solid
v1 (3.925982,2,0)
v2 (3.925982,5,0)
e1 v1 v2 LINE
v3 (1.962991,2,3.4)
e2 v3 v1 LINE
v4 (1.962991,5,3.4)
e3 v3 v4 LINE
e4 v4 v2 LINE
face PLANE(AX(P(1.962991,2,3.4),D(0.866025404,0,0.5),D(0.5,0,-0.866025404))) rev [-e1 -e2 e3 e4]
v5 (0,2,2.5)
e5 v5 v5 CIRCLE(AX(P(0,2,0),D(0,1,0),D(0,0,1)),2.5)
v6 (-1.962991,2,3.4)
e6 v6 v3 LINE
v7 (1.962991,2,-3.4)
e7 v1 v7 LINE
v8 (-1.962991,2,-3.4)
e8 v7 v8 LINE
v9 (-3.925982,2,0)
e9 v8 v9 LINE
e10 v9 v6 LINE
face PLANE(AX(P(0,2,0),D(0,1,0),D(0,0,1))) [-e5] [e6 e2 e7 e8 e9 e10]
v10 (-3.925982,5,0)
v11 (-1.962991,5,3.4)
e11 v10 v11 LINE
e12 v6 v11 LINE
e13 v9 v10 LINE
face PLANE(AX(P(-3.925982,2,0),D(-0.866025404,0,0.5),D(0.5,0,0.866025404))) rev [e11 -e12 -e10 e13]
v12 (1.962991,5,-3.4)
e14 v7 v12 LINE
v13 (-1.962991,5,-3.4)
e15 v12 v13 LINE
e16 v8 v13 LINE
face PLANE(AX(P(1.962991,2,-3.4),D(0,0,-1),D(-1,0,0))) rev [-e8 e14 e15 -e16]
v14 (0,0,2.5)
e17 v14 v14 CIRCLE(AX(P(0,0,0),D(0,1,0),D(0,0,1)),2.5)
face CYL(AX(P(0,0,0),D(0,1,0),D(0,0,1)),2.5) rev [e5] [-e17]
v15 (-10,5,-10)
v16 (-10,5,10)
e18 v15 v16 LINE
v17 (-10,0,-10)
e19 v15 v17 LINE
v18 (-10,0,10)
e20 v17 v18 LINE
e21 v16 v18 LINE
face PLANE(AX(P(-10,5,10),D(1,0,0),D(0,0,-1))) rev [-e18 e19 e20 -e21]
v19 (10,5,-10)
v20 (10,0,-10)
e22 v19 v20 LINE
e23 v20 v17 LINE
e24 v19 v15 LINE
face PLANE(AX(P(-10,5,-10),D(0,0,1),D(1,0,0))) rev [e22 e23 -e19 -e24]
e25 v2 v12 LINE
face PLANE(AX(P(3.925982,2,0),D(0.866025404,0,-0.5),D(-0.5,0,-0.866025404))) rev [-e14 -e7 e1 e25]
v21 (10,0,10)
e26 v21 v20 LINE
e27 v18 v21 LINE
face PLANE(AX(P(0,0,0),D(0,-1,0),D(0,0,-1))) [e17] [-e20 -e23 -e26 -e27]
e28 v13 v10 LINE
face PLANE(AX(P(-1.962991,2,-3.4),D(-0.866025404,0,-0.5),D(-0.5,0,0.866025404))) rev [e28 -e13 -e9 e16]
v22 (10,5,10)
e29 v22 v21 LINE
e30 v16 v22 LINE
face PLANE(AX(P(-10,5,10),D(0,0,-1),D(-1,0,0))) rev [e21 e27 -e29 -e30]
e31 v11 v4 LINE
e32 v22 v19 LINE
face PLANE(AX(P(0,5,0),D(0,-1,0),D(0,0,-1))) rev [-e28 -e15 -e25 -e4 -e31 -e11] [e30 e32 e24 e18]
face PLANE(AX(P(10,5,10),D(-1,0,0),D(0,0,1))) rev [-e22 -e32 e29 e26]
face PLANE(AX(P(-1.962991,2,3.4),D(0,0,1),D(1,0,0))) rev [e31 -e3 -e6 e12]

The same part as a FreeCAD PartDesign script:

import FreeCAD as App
import Part
import Sketcher
Q = App.Units.Quantity


def add_polygon(sketch, points):
    """Adds a closed chain of lines whose ends are joined by coincident constraints."""
    first, n = sketch.GeometryCount, len(points)
    for a, b in zip(points, points[1:] + points[:1]):
        sketch.addGeometry(Part.LineSegment(App.Vector(*a, 0), App.Vector(*b, 0)), False)
    for i in range(n):
        sketch.addConstraint(Sketcher.Constraint("Coincident", first + i, 2, first + (i + 1) % n, 1))

doc = App.newDocument("Part")
body = doc.addObject("PartDesign::Body", "Body")

sketch1 = doc.addObject("Sketcher::SketchObject", "Sketch")
body.addObject(sketch1)
sketch1.AttachmentSupport = (doc.XZ_Plane, [""])
sketch1.MapMode = "FlatFace"
add_polygon(sketch1, [(-10, -10), (-10, 10), (10, 10), (10, -10)])
sketch1.addConstraint(Sketcher.Constraint("Vertical", 0))
sketch1.addConstraint(Sketcher.Constraint("Horizontal", 1))
sketch1.addConstraint(Sketcher.Constraint("Vertical", 2))
sketch1.addConstraint(Sketcher.Constraint("Horizontal", 3))
sketch1.addConstraint(Sketcher.Constraint("Symmetric", 0, 2, 2, 2, -1, 1))
sketch1.addConstraint(Sketcher.Constraint("Equal", 3, 0))
sketch1.addConstraint(Sketcher.Constraint("DistanceX", 1, 1, 1, 2, Q("20 mm")))
pad1 = doc.addObject("PartDesign::Pad", "Pad")
body.addObject(pad1)
pad1.Profile = sketch1
pad1.Length = 5
pad1.Reversed = True

sketch2 = doc.addObject("Sketcher::SketchObject", "Sketch001")
body.addObject(sketch2)
sketch2.AttachmentSupport = (doc.XZ_Plane, [""])
sketch2.MapMode = "FlatFace"
sketch2.AttachmentOffset = App.Placement(App.Vector(0, 0, -5), App.Rotation())
add_polygon(sketch2, [(3.9, 0), (2, -3.4), (-2, -3.4), (-3.9, 0), (-2, 3.4), (2, 3.4)])
sketch2.addConstraint(Sketcher.Constraint("Horizontal", 1))
sketch2.addConstraint(Sketcher.Constraint("Horizontal", 4))
sketch2.addConstraint(Sketcher.Constraint("Symmetric", 0, 2, 3, 2, -1, 1))
sketch2.addConstraint(Sketcher.Constraint("Symmetric", 2, 2, 5, 2, -1, 1))
sketch2.addConstraint(Sketcher.Constraint("PointOnObject", 2, 2, -1))
sketch2.addConstraint(Sketcher.Constraint("Parallel", 2, 5))
sketch2.addConstraint(Sketcher.Constraint("Vertical", 1, 2, 3, 2))
sketch2.addConstraint(Sketcher.Constraint("Angle", 0, Q("-120 deg")))
sketch2.addConstraint(Sketcher.Constraint("DistanceY", 0, 2, -1, 1, Q("3.4 mm")))
sketch2.addConstraint(Sketcher.Constraint("DistanceX", 1, 2, 1, 1, Q("3.925982 mm")))
pocket1 = doc.addObject("PartDesign::Pocket", "Pocket")
body.addObject(pocket1)
pocket1.Profile = sketch2
pocket1.Length = 3
pocket1.Reversed = True

sketch3 = doc.addObject("Sketcher::SketchObject", "Sketch002")
body.addObject(sketch3)
sketch3.AttachmentSupport = (doc.XZ_Plane, [""])
sketch3.MapMode = "FlatFace"
sketch3.AttachmentOffset = App.Placement(App.Vector(0, 0, -2), App.Rotation())
sketch3.addGeometry(Part.Circle(App.Vector(0, 0, 0), App.Vector(0, 0, 1), 2.5), False)
sketch3.addConstraint(Sketcher.Constraint("Coincident", 0, 3, -1, 1))
sketch3.addConstraint(Sketcher.Constraint("Diameter", 0, Q("5 mm")))
pocket2 = doc.addObject("PartDesign::Pocket", "Pocket001")
body.addObject(pocket2)
pocket2.Profile = sketch3
pocket2.Type = "ThroughAll"
pocket2.Reversed = True

doc.recompute()
